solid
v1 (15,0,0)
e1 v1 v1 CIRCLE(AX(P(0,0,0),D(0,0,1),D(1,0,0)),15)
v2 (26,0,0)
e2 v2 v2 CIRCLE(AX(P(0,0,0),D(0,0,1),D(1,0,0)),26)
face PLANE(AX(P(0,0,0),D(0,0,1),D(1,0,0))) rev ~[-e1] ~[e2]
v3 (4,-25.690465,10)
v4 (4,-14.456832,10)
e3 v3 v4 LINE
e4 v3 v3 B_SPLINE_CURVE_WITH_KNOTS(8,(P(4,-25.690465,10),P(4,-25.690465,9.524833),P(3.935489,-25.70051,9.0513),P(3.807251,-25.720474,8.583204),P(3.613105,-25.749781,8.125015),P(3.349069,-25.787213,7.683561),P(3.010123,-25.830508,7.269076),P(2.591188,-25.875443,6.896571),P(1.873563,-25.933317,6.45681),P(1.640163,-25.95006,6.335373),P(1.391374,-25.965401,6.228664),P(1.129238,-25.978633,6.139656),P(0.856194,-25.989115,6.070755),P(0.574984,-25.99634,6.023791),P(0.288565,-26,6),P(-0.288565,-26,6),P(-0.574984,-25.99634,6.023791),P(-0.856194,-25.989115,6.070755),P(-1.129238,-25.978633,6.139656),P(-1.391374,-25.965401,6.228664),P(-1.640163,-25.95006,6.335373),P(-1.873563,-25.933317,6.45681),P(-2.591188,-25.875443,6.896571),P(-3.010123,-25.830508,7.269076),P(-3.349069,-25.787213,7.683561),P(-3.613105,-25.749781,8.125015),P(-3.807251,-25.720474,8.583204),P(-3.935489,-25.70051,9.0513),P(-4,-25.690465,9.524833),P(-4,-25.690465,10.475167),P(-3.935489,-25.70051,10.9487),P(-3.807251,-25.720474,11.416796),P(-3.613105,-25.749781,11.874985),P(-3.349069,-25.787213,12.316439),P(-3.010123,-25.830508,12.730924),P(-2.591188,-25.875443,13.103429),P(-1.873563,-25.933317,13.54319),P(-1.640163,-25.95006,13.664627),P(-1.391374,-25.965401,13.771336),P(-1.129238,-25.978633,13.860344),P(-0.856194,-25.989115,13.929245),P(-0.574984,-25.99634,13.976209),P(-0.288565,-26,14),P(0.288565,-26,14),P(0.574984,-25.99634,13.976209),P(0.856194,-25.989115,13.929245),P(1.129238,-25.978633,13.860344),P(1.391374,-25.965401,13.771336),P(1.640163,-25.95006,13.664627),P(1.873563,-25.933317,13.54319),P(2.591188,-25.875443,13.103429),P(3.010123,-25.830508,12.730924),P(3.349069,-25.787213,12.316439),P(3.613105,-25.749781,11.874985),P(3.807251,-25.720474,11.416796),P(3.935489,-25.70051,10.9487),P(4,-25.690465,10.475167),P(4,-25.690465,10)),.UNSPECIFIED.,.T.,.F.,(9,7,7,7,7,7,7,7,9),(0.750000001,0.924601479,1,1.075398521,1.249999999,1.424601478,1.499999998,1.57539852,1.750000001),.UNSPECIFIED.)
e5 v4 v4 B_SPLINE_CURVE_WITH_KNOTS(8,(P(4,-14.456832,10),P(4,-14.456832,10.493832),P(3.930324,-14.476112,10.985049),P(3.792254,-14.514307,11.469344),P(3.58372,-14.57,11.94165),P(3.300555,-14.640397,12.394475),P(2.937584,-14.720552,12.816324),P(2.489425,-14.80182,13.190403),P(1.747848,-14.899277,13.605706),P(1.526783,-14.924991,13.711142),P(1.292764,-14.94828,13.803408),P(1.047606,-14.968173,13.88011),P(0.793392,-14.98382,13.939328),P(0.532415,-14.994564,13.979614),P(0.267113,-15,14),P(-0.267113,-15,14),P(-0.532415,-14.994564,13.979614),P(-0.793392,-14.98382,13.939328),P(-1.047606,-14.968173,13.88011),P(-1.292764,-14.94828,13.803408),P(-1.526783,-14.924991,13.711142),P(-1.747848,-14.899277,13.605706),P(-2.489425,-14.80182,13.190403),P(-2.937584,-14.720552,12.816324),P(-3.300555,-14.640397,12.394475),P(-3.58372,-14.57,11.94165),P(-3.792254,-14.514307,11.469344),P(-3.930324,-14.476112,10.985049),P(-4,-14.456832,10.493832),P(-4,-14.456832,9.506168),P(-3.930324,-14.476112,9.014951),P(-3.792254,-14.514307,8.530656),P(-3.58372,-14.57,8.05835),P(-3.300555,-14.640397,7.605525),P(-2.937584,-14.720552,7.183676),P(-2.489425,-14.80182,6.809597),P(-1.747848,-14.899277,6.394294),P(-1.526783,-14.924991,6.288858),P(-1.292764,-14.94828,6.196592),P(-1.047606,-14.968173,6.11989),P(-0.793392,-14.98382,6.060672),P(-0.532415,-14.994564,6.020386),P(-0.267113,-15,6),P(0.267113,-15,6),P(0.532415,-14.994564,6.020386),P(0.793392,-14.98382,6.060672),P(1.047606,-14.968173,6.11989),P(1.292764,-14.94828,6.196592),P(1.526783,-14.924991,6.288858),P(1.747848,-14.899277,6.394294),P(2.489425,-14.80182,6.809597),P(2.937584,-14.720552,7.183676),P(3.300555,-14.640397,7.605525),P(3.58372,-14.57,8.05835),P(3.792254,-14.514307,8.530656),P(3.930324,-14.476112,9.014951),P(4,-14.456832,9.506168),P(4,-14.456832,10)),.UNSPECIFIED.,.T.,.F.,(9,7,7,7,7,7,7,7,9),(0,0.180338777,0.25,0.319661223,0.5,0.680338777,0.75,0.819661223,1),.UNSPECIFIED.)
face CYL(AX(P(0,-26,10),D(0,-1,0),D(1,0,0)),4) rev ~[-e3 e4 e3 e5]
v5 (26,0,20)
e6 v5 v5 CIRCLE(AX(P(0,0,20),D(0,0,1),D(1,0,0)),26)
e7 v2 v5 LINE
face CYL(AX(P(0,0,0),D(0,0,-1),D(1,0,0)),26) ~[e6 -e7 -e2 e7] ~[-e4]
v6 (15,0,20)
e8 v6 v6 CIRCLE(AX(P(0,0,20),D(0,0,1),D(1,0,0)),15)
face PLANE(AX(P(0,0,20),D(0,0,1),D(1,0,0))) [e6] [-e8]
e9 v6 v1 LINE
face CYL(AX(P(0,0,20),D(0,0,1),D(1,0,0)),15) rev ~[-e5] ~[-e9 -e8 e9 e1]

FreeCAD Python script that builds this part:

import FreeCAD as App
import Part
import Sketcher
from FreeCAD import Vector
Q = App.Units.Quantity

doc = App.newDocument("Part")
params = doc.addObject("Spreadsheet::Sheet", "Params")
for row, (alias, value) in enumerate([
    ("sketch1_diameter", "52 mm"),
    ("pad1_length", "20 mm"),
    ("sketch2_diameter", "30 mm"),
    ("sketch3_diameter", "8 mm"),
    ("pocket2_length", "26 mm"),
], start=1):
    params.set(f"A{row}", alias)
    params.set(f"B{row}", "=" + value)
    params.setAlias(f"B{row}", alias)

body = doc.addObject("PartDesign::Body", "Body")

# Sketch on XY plane
sketch1 = body.newObject("Sketcher::SketchObject", "Sketch")
sketch1.AttachmentSupport = (doc.getObject("XY_Plane"), [""])
sketch1.MapMode = "FlatFace"
sketch1.addGeometry(Part.Circle(Vector(0, 0, 0), Vector(0, 0, 1), 26), False)
sketch1.addConstraint([
    Sketcher.Constraint("Coincident", 0, 3, -1, 1),
    Sketcher.Constraint("Diameter", 0, Q("52 mm")),
])
sketch1.setExpression("Constraints[1]", "Params.sketch1_diameter")
pad1 = body.newObject("PartDesign::Pad", "Pad")
pad1.Profile = sketch1
pad1.setExpression("Length", "Params.pad1_length")

# Sketch on XY plane
sketch2 = body.newObject("Sketcher::SketchObject", "Sketch001")
sketch2.AttachmentSupport = (doc.getObject("XY_Plane"), [""])
sketch2.MapMode = "FlatFace"
sketch2.AttachmentOffset = App.Placement(Vector(0, 0, 20), App.Rotation())
sketch2.addGeometry(Part.Circle(Vector(0, 0, 0), Vector(0, 0, 1), 15), False)
sketch2.addConstraint([
    Sketcher.Constraint("Coincident", 0, 3, -1, 1),
    Sketcher.Constraint("Diameter", 0, Q("30 mm")),
])
sketch2.setExpression("Constraints[1]", "Params.sketch2_diameter")
pocket1 = body.newObject("PartDesign::Pocket", "Pocket")
pocket1.Profile = sketch2
pocket1.Type = "ThroughAll"

# Sketch on XZ plane
sketch3 = body.newObject("Sketcher::SketchObject", "Sketch002")
sketch3.AttachmentSupport = (doc.getObject("XZ_Plane"), [""])
sketch3.MapMode = "FlatFace"
sketch3.AttachmentOffset = App.Placement(Vector(0, 0, 26), App.Rotation())
sketch3.addGeometry(Part.Circle(Vector(0, 10, 0), Vector(0, 0, 1), 4), False)
sketch3.addConstraint([
    Sketcher.Constraint("PointOnObject", 0, 3, -2),
    Sketcher.Constraint("Diameter", 0, Q("8 mm")),
    Sketcher.Constraint("DistanceY", -1, 1, 0, 3, Q("10 mm")),
])
sketch3.setExpression("Constraints[1]", "Params.sketch3_diameter")
pocket2 = body.newObject("PartDesign::Pocket", "Pocket001")
pocket2.Profile = sketch3
pocket2.setExpression("Length", "Params.pocket2_length")

doc.recompute()
